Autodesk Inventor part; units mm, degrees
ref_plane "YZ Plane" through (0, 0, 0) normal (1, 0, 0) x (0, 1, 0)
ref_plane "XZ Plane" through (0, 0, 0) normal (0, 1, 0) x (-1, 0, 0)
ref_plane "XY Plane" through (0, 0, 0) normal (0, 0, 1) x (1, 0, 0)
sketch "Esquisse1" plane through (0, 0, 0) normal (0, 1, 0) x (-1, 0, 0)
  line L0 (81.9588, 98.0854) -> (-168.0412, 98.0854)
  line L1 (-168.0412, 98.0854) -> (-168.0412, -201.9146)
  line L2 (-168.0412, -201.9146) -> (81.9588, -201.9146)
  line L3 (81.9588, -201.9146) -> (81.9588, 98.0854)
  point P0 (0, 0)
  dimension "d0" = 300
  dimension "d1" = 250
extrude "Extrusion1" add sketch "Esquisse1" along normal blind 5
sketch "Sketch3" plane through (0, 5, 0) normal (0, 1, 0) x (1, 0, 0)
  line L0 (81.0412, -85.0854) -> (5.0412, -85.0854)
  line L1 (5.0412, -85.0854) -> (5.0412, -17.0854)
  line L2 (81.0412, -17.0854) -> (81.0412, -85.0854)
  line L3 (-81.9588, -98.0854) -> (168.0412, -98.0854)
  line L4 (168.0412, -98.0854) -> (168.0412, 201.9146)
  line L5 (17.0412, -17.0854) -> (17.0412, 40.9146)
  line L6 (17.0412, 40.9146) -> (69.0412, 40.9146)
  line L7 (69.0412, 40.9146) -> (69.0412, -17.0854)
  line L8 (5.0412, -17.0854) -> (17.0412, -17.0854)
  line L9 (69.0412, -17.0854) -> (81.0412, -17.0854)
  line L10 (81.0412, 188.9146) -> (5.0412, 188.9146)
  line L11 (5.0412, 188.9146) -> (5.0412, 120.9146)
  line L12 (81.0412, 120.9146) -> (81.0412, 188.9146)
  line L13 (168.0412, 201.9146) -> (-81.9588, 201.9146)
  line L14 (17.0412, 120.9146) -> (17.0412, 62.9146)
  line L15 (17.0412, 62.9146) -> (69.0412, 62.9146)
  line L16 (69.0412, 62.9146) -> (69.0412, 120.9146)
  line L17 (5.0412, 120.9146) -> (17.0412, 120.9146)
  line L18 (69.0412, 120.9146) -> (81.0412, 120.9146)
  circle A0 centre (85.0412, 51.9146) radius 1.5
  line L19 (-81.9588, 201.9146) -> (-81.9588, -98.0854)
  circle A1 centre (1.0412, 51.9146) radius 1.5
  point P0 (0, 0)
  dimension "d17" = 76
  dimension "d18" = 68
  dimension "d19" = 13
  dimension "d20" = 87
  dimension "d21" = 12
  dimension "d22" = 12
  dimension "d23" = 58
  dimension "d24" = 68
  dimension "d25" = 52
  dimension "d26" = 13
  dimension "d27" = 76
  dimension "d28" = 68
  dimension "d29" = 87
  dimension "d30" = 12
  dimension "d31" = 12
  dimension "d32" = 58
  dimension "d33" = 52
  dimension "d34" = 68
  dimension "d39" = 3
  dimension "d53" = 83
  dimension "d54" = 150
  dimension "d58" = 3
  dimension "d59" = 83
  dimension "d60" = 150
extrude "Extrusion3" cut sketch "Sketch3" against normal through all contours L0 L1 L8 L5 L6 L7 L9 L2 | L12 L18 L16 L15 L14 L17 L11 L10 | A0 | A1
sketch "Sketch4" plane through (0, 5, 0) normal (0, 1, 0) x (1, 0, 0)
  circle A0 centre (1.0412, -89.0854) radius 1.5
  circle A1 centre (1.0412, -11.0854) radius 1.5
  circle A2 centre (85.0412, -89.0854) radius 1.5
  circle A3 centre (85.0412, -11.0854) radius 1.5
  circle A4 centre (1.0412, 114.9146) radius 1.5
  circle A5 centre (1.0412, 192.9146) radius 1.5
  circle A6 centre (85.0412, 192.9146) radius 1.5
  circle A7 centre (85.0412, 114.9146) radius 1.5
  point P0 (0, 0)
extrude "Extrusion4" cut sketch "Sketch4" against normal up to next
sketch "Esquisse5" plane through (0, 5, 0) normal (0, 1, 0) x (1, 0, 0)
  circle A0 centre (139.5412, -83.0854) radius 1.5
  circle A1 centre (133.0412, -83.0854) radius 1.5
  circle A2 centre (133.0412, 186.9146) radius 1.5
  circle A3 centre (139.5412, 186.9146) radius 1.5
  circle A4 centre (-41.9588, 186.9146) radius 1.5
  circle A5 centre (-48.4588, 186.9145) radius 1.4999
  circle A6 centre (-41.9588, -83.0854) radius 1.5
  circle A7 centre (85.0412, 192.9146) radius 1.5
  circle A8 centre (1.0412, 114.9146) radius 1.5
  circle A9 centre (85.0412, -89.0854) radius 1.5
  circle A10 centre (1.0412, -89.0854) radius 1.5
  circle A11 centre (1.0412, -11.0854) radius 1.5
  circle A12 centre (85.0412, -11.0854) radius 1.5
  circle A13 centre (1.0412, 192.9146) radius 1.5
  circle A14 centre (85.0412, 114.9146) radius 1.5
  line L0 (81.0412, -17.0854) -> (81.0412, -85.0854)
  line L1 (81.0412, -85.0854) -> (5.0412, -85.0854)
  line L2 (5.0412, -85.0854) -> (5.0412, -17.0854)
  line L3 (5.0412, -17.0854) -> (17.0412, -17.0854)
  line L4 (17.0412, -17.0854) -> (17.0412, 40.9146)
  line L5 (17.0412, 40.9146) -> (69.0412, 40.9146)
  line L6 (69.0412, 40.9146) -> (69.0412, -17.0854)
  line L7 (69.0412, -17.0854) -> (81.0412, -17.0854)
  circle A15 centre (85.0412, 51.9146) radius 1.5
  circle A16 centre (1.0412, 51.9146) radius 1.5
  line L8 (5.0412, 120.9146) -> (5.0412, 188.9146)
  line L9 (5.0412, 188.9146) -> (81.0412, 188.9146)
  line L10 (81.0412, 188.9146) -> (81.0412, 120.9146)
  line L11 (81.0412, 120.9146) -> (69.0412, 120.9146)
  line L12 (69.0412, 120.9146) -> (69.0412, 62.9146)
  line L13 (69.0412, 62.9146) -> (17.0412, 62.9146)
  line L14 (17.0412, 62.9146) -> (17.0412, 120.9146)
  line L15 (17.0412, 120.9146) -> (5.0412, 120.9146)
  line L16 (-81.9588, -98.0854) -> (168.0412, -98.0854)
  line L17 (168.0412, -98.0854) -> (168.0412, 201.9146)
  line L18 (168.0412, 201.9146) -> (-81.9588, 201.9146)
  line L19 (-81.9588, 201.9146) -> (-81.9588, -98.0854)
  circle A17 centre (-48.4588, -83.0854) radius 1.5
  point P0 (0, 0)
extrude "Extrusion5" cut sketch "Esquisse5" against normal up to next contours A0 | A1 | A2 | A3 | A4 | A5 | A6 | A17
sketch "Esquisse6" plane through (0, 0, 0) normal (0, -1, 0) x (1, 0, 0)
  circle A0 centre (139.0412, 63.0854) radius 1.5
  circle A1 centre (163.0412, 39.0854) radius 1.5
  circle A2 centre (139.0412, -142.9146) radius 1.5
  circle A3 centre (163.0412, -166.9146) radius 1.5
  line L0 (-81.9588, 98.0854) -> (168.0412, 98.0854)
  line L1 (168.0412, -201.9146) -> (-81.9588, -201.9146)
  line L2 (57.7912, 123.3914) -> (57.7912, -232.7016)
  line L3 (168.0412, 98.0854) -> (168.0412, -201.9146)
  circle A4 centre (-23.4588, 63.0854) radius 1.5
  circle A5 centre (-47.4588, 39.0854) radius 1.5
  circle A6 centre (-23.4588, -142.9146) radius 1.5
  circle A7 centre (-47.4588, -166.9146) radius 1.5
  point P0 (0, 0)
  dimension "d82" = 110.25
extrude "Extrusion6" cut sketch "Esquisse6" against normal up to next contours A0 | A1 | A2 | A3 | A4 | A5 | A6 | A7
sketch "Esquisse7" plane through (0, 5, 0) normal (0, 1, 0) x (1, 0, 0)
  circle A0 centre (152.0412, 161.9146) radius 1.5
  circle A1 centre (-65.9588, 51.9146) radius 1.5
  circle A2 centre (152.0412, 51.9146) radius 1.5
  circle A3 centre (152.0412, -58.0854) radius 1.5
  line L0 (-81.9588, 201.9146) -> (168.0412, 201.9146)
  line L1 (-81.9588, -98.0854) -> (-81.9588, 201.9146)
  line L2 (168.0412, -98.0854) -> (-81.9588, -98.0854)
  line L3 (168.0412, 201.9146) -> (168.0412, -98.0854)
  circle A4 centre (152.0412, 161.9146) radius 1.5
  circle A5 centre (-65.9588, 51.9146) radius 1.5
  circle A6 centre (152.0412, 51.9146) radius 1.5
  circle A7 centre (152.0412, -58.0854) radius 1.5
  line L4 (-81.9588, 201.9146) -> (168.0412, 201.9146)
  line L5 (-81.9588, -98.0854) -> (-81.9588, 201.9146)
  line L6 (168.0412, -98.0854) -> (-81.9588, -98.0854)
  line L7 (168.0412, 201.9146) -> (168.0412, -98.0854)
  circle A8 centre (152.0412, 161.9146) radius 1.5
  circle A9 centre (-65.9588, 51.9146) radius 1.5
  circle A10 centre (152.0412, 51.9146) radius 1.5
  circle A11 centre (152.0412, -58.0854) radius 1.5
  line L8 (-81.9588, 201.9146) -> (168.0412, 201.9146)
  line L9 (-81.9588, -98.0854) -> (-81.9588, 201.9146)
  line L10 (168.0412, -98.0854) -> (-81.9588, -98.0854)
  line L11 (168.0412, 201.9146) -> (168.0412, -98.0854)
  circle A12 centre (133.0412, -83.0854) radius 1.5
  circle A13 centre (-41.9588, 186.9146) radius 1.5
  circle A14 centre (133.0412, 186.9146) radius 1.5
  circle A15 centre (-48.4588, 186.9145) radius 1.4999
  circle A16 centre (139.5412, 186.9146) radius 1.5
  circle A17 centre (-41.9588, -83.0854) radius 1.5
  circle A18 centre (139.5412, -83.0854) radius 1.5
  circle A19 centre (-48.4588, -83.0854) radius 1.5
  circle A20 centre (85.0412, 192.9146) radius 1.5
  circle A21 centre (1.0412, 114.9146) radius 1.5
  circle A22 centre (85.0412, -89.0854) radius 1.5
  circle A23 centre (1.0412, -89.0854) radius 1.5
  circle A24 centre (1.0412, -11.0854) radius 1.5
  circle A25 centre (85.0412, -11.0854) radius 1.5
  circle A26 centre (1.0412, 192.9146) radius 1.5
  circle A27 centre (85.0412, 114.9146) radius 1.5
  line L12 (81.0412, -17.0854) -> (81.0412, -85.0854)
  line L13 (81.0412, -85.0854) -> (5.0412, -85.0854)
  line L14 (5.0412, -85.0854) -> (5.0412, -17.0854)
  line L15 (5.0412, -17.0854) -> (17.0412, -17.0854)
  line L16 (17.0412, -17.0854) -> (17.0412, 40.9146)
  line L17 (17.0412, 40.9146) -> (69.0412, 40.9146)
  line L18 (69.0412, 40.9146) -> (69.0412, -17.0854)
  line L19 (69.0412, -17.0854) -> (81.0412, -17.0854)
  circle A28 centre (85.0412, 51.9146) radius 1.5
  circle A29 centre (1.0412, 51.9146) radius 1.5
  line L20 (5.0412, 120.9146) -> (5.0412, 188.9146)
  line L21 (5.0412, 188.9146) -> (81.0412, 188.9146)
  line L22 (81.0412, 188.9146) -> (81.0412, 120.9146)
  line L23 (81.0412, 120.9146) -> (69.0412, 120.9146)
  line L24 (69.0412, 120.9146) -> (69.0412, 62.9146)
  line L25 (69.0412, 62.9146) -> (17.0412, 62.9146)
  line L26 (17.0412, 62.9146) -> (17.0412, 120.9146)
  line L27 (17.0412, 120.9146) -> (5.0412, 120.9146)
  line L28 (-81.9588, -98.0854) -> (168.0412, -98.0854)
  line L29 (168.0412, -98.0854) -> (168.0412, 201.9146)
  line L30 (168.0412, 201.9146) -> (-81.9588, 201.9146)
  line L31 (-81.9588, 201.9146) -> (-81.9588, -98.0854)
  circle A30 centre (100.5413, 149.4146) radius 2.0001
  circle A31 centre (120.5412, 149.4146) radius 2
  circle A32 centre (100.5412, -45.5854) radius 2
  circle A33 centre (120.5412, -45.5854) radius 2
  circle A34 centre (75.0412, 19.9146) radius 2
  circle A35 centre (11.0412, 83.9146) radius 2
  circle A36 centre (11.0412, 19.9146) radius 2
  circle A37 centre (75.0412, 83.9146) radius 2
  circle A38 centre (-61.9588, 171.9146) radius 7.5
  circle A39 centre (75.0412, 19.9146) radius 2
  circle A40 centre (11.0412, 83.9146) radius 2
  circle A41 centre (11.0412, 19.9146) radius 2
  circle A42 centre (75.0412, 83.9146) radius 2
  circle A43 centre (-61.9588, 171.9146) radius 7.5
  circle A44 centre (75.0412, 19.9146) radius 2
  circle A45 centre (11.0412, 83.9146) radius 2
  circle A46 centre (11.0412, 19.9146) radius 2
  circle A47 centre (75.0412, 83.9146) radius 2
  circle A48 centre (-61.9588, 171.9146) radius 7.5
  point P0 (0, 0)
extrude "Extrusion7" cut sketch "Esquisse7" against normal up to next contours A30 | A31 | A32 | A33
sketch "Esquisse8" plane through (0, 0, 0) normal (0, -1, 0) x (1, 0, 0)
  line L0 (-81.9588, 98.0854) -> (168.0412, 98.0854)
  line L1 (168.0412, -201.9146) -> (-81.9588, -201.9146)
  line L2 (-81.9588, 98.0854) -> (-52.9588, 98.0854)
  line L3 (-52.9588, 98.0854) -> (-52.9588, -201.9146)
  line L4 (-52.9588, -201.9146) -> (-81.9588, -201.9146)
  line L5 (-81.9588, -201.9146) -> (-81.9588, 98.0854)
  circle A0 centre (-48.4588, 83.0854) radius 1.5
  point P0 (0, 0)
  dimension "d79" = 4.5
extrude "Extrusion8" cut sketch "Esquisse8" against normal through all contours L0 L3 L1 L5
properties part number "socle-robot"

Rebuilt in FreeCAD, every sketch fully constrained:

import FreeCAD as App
import Part
import Sketcher
from FreeCAD import Vector
Q = App.Units.Quantity

doc = App.newDocument("Part")
body = doc.addObject("PartDesign::Body", "Body")

# Sketch on XZ plane
sketch1 = body.newObject("Sketcher::SketchObject", "Sketch")
sketch1.AttachmentSupport = (doc.getObject("XZ_Plane"), [""])
sketch1.MapMode = "FlatFace"
sketch1.addGeometry([
    Part.LineSegment(Vector(-82, -202, 0), Vector(-82, 98, 0)),
    Part.LineSegment(Vector(-82, 98, 0), Vector(168, 98, 0)),
    Part.LineSegment(Vector(168, 98, 0), Vector(168, -202, 0)),
    Part.LineSegment(Vector(168, -202, 0), Vector(-82, -202, 0)),
], False)
sketch1.addConstraint([
    Sketcher.Constraint("Coincident", 0, 2, 1, 1),
    Sketcher.Constraint("Coincident", 1, 2, 2, 1),
    Sketcher.Constraint("Coincident", 2, 2, 3, 1),
    Sketcher.Constraint("Coincident", 3, 2, 0, 1),
    Sketcher.Constraint("Vertical", 0),
    Sketcher.Constraint("Horizontal", 1),
    Sketcher.Constraint("Vertical", 2),
    Sketcher.Constraint("Horizontal", 3),
    Sketcher.Constraint("DistanceX", 1, 1, 1, 2, Q("250 mm")),
    Sketcher.Constraint("DistanceY", 0, 1, 0, 2, Q("300 mm")),
    Sketcher.Constraint("DistanceX", 0, 2, -1, 1, Q("81.9588 mm")),
    Sketcher.Constraint("DistanceY", -1, 1, 0, 2, Q("98.0854 mm")),
])
pad1 = body.newObject("PartDesign::Pad", "Pad")
pad1.Profile = sketch1
pad1.Length = 5
pad1.Reversed = True

# Sketch on XZ plane
sketch2 = body.newObject("Sketcher::SketchObject", "Sketch001")
sketch2.AttachmentSupport = (doc.getObject("XZ_Plane"), [""])
sketch2.MapMode = "FlatFace"
sketch2.AttachmentOffset = App.Placement(Vector(0, 0, -5), App.Rotation())
sketch2.addGeometry([
    Part.LineSegment(Vector(5, 85.1, 0), Vector(81, 85.1, 0)),  # 0
    Part.LineSegment(Vector(81, 85.1, 0), Vector(81, 17.1, 0)),  # 1
    Part.LineSegment(Vector(81, 17.1, 0), Vector(69, 17.1, 0)),  # 2
    Part.LineSegment(Vector(69, 17.1, 0), Vector(69, -40.9, 0)),  # 3
    Part.LineSegment(Vector(69, -40.9, 0), Vector(17, -40.9, 0)),  # 4
    Part.LineSegment(Vector(17, -40.9, 0), Vector(17, 17.1, 0)),  # 5
    Part.LineSegment(Vector(17, 17.1, 0), Vector(5, 17.1, 0)),  # 6
    Part.LineSegment(Vector(5, 17.1, 0), Vector(5, 85.1, 0)),  # 7
    Part.LineSegment(Vector(81, -120.9, 0), Vector(81, -188.9, 0)),  # 8
    Part.LineSegment(Vector(81, -188.9, 0), Vector(5, -188.9, 0)),  # 9
    Part.LineSegment(Vector(5, -188.9, 0), Vector(5, -120.9, 0)),  # 10
    Part.LineSegment(Vector(5, -120.9, 0), Vector(17, -120.9, 0)),  # 11
    Part.LineSegment(Vector(17, -120.9, 0), Vector(17, -62.9, 0)),  # 12
    Part.LineSegment(Vector(17, -62.9, 0), Vector(69, -62.9, 0)),  # 13
    Part.LineSegment(Vector(69, -62.9, 0), Vector(69, -120.9, 0)),  # 14
    Part.LineSegment(Vector(69, -120.9, 0), Vector(81, -120.9, 0)),  # 15
    Part.Circle(Vector(85, -51.9, 0), Vector(0, 0, 1), 1.5),  # 16
    Part.Circle(Vector(1, -51.9, 0), Vector(0, 0, 1), 1.5),  # 17
], False)
sketch2.addConstraint([
    Sketcher.Constraint("Coincident", 0, 2, 1, 1),
    Sketcher.Constraint("Coincident", 1, 2, 2, 1),
    Sketcher.Constraint("Coincident", 2, 2, 3, 1),
    Sketcher.Constraint("Coincident", 3, 2, 4, 1),
    Sketcher.Constraint("Coincident", 4, 2, 5, 1),
    Sketcher.Constraint("Coincident", 5, 2, 6, 1),
    Sketcher.Constraint("Coincident", 6, 2, 7, 1),
    Sketcher.Constraint("Coincident", 7, 2, 0, 1),
    Sketcher.Constraint("Coincident", 8, 2, 9, 1),
    Sketcher.Constraint("Coincident", 9, 2, 10, 1),
    Sketcher.Constraint("Coincident", 10, 2, 11, 1),
    Sketcher.Constraint("Coincident", 11, 2, 12, 1),
    Sketcher.Constraint("Coincident", 12, 2, 13, 1),
    Sketcher.Constraint("Coincident", 13, 2, 14, 1),
    Sketcher.Constraint("Coincident", 14, 2, 15, 1),
    Sketcher.Constraint("Coincident", 15, 2, 8, 1),
    Sketcher.Constraint("Horizontal", 0),
    Sketcher.Constraint("Vertical", 1),
    Sketcher.Constraint("Horizontal", 2),
    Sketcher.Constraint("Vertical", 3),
    Sketcher.Constraint("Horizontal", 4),
    Sketcher.Constraint("Vertical", 5),
    Sketcher.Constraint("Horizontal", 6),
    Sketcher.Constraint("Vertical", 7),
    Sketcher.Constraint("Vertical", 8),
    Sketcher.Constraint("Horizontal", 9),
    Sketcher.Constraint("Vertical", 10),
    Sketcher.Constraint("Horizontal", 11),
    Sketcher.Constraint("Vertical", 12),
    Sketcher.Constraint("Horizontal", 13),
    Sketcher.Constraint("Vertical", 14),
    Sketcher.Constraint("Horizontal", 15),
    Sketcher.Constraint("Equal", 16, 17),
    Sketcher.Constraint("Horizontal", 16, 3, 17, 3),
    Sketcher.Constraint("Horizontal", 2, 2, 5, 2),
    Sketcher.Constraint("Horizontal", 11, 2, 14, 2),
    Sketcher.Constraint("Vertical", 1, 2, 8, 2),
    Sketcher.Constraint("Vertical", 7, 2, 9, 2),
    Sketcher.Constraint("Vertical", 5, 2, 11, 2),
    Sketcher.Constraint("Vertical", 3, 2, 13, 2),
    Sketcher.Constraint("Equal", 2, 6),
    Sketcher.Constraint("Equal", 7, 8),
    Sketcher.Constraint("Equal", 5, 12),
    Sketcher.Constraint("Diameter", 16, Q("3 mm")),
    Sketcher.Constraint("DistanceX", 0, 1, 0, 2, Q("76 mm")),
    Sketcher.Constraint("DistanceX", 2, 2, 2, 1, Q("12 mm")),
    Sketcher.Constraint("DistanceY", 1, 2, 1, 1, Q("68 mm")),
    Sketcher.Constraint("DistanceY", 3, 2, 3, 1, Q("58 mm")),
    Sketcher.Constraint("DistanceX", 17, 3, 2, 2, Q("68 mm")),
    Sketcher.Constraint("DistanceX", 4, 2, 16, 3, Q("68 mm")),
    Sketcher.Constraint("DistanceY", 16, 3, 0, 2, Q("137 mm")),
    Sketcher.Constraint("DistanceY", 8, 2, 16, 3, Q("137 mm")),
    Sketcher.Constraint("DistanceX", -1, 1, 16, 3, Q("85.0412 mm")),
    Sketcher.Constraint("DistanceY", 16, 3, -1, 1, Q("51.9146 mm")),
])
pocket1 = body.newObject("PartDesign::Pocket", "Pocket")
pocket1.Profile = sketch2
pocket1.Type = "ThroughAll"
pocket1.Reversed = True

# Sketch on XZ plane
sketch3 = body.newObject("Sketcher::SketchObject", "Sketch002")
sketch3.AttachmentSupport = (doc.getObject("XZ_Plane"), [""])
sketch3.MapMode = "FlatFace"
sketch3.AttachmentOffset = App.Placement(Vector(0, 0, -5), App.Rotation())
sketch3.addGeometry([
    Part.Circle(Vector(1, 89.1, 0), Vector(0, 0, 1), 1.5),  # 0
    Part.Circle(Vector(1, 11.1, 0), Vector(0, 0, 1), 1.5),  # 1
    Part.Circle(Vector(85, 89.1, 0), Vector(0, 0, 1), 1.5),  # 2
    Part.Circle(Vector(85, 11.1, 0), Vector(0, 0, 1), 1.5),  # 3
    Part.Circle(Vector(1, -114.9, 0), Vector(0, 0, 1), 1.5),  # 4
    Part.Circle(Vector(1, -192.9, 0), Vector(0, 0, 1), 1.5),  # 5
    Part.Circle(Vector(85, -192.9, 0), Vector(0, 0, 1), 1.5),  # 6
    Part.Circle(Vector(85, -114.9, 0), Vector(0, 0, 1), 1.5),  # 7
], False)
sketch3.addConstraint([
    Sketcher.Constraint("Equal", 0, 1),
    Sketcher.Constraint("Equal", 1, 2),
    Sketcher.Constraint("Equal", 2, 3),
    Sketcher.Constraint("Equal", 3, 4),
    Sketcher.Constraint("Equal", 4, 5),
    Sketcher.Constraint("Equal", 5, 6),
    Sketcher.Constraint("Equal", 6, 7),
    Sketcher.Constraint("Horizontal", 0, 3, 2, 3),
    Sketcher.Constraint("Horizontal", 1, 3, 3, 3),
    Sketcher.Constraint("Horizontal", 5, 3, 6, 3),
    Sketcher.Constraint("Horizontal", 4, 3, 7, 3),
    Sketcher.Constraint("Vertical", 0, 3, 1, 3),
    Sketcher.Constraint("Vertical", 2, 3, 3, 3),
    Sketcher.Constraint("Vertical", 1, 3, 4, 3),
    Sketcher.Constraint("Vertical", 4, 3, 5, 3),
    Sketcher.Constraint("Vertical", 3, 3, 6, 3),
    Sketcher.Constraint("Vertical", 6, 3, 7, 3),
    Sketcher.Constraint("Diameter", 0, Q("3 mm")),
    Sketcher.Constraint("DistanceY", 1, 3, 0, 3, Q("78 mm")),
    Sketcher.Constraint("DistanceX", 0, 3, 2, 3, Q("84 mm")),
    Sketcher.Constraint("DistanceY", 4, 3, 1, 3, Q("126 mm")),
    Sketcher.Constraint("DistanceY", 5, 3, 4, 3, Q("78 mm")),
    Sketcher.Constraint("DistanceX", -1, 1, 0, 3, Q("1.0412 mm")),
    Sketcher.Constraint("DistanceY", -1, 1, 0, 3, Q("89.0854 mm")),
])
pocket2 = body.newObject("PartDesign::Pocket", "Pocket001")
pocket2.Profile = sketch3
pocket2.Length = 5
pocket2.Reversed = True

# Sketch on XZ plane
sketch4 = body.newObject("Sketcher::SketchObject", "Sketch003")
sketch4.AttachmentSupport = (doc.getObject("XZ_Plane"), [""])
sketch4.MapMode = "FlatFace"
sketch4.AttachmentOffset = App.Placement(Vector(0, 0, -5), App.Rotation())
sketch4.addGeometry([
    Part.Circle(Vector(139.5, 83.1, 0), Vector(0, 0, 1), 1.5),  # 0
    Part.Circle(Vector(133, 83.1, 0), Vector(0, 0, 1), 1.5),  # 1
    Part.Circle(Vector(133, -186.9, 0), Vector(0, 0, 1), 1.5),  # 2
    Part.Circle(Vector(139.5, -186.9, 0), Vector(0, 0, 1), 1.5),  # 3
    Part.Circle(Vector(-42, -186.9, 0), Vector(0, 0, 1), 1.5),  # 4
    Part.Circle(Vector(-48.5, -186.9, 0), Vector(0, 0, 1), 1.5),  # 5
    Part.Circle(Vector(-42, 83.1, 0), Vector(0, 0, 1), 1.5),  # 6
    Part.Circle(Vector(-48.5, 83.1, 0), Vector(0, 0, 1), 1.5),  # 7
], False)
sketch4.addConstraint([
    Sketcher.Constraint("Equal", 0, 1),
    Sketcher.Constraint("Equal", 1, 2),
    Sketcher.Constraint("Equal", 2, 3),
    Sketcher.Constraint("Equal", 3, 4),
    Sketcher.Constraint("Equal", 4, 5),
    Sketcher.Constraint("Equal", 5, 6),
    Sketcher.Constraint("Equal", 6, 7),
    Sketcher.Constraint("Horizontal", 0, 3, 1, 3),
    Sketcher.Constraint("Horizontal", 2, 3, 3, 3),
    Sketcher.Constraint("Horizontal", 3, 3, 4, 3),
    Sketcher.Constraint("Horizontal", 4, 3, 5, 3),
    Sketcher.Constraint("Horizontal", 1, 3, 6, 3),
    Sketcher.Constraint("Horizontal", 6, 3, 7, 3),
    Sketcher.Constraint("Vertical", 1, 3, 2, 3),
    Sketcher.Constraint("Vertical", 0, 3, 3, 3),
    Sketcher.Constraint("Vertical", 4, 3, 6, 3),
    Sketcher.Constraint("Vertical", 5, 3, 7, 3),
    Sketcher.Constraint("Diameter", 0, Q("3 mm")),
    Sketcher.Constraint("DistanceY", 2, 3, 1, 3, Q("270 mm")),
    Sketcher.Constraint("DistanceX", 4, 3, 2, 3, Q("175 mm")),
    Sketcher.Constraint("DistanceX", 5, 3, 3, 3, Q("188 mm")),
    Sketcher.Constraint("DistanceX", 1, 3, 0, 3, Q("6.5 mm")),
    Sketcher.Constraint("DistanceX", -1, 1, 0, 3, Q("139.5412 mm")),
    Sketcher.Constraint("DistanceY", -1, 1, 0, 3, Q("83.0854 mm")),
])
pocket3 = body.newObject("PartDesign::Pocket", "Pocket002")
pocket3.Profile = sketch4
pocket3.Length = 5
pocket3.Reversed = True

# Sketch on XZ plane
sketch5 = body.newObject("Sketcher::SketchObject", "Sketch004")
sketch5.AttachmentSupport = (doc.getObject("XZ_Plane"), [""])
sketch5.MapMode = "FlatFace"
sketch5.addGeometry([
    Part.Circle(Vector(139, 63.1, 0), Vector(0, 0, 1), 1.5),  # 0
    Part.Circle(Vector(163, 39.1, 0), Vector(0, 0, 1), 1.5),  # 1
    Part.Circle(Vector(139, -142.9, 0), Vector(0, 0, 1), 1.5),  # 2
    Part.Circle(Vector(163, -166.9, 0), Vector(0, 0, 1), 1.5),  # 3
    Part.Circle(Vector(-23.5, 63.1, 0), Vector(0, 0, 1), 1.5),  # 4
    Part.Circle(Vector(-47.5, 39.1, 0), Vector(0, 0, 1), 1.5),  # 5
    Part.Circle(Vector(-23.5, -142.9, 0), Vector(0, 0, 1), 1.5),  # 6
    Part.Circle(Vector(-47.5, -166.9, 0), Vector(0, 0, 1), 1.5),  # 7
], False)
sketch5.addConstraint([
    Sketcher.Constraint("Equal", 0, 1),
    Sketcher.Constraint("Equal", 1, 2),
    Sketcher.Constraint("Equal", 2, 3),
    Sketcher.Constraint("Equal", 3, 4),
    Sketcher.Constraint("Equal", 4, 5),
    Sketcher.Constraint("Equal", 5, 6),
    Sketcher.Constraint("Equal", 6, 7),
    Sketcher.Constraint("Horizontal", 0, 3, 4, 3),
    Sketcher.Constraint("Horizontal", 1, 3, 5, 3),
    Sketcher.Constraint("Horizontal", 2, 3, 6, 3),
    Sketcher.Constraint("Horizontal", 3, 3, 7, 3),
    Sketcher.Constraint("Vertical", 0, 3, 2, 3),
    Sketcher.Constraint("Vertical", 1, 3, 3, 3),
    Sketcher.Constraint("Vertical", 4, 3, 6, 3),
    Sketcher.Constraint("Vertical", 5, 3, 7, 3),
    Sketcher.Constraint("Diameter", 0, Q("3 mm")),
    Sketcher.Constraint("DistanceX", 0, 3, 1, 3, Q("24 mm")),
    Sketcher.Constraint("DistanceY", 1, 3, 0, 3, Q("24 mm")),
    Sketcher.Constraint("DistanceY", 2, 3, 1, 3, Q("182 mm")),
    Sketcher.Constraint("DistanceY", 3, 3, 2, 3, Q("24 mm")),
    Sketcher.Constraint("DistanceX", 5, 3, 4, 3, Q("24 mm")),
    Sketcher.Constraint("DistanceX", 4, 3, 0, 3, Q("162.5 mm")),
    Sketcher.Constraint("DistanceX", -1, 1, 0, 3, Q("139.0412 mm")),
    Sketcher.Constraint("DistanceY", -1, 1, 0, 3, Q("63.0854 mm")),
])
pocket4 = body.newObject("PartDesign::Pocket", "Pocket003")
pocket4.Profile = sketch5
pocket4.Type = "UpToFirst"

# Sketch on XZ plane
sketch6 = body.newObject("Sketcher::SketchObject", "Sketch005")
sketch6.AttachmentSupport = (doc.getObject("XZ_Plane"), [""])
sketch6.MapMode = "FlatFace"
sketch6.AttachmentOffset = App.Placement(Vector(0, 0, -5), App.Rotation())
sketch6.addGeometry([
    Part.Circle(Vector(100.5, -149.4, 0), Vector(0, 0, 1), 2),
    Part.Circle(Vector(120.5, -149.4, 0), Vector(0, 0, 1), 2),
    Part.Circle(Vector(100.5, 45.6, 0), Vector(0, 0, 1), 2),
    Part.Circle(Vector(120.5, 45.6, 0), Vector(0, 0, 1), 2),
], False)
sketch6.addConstraint([
    Sketcher.Constraint("Equal", 0, 1),
    Sketcher.Constraint("Equal", 1, 2),
    Sketcher.Constraint("Equal", 2, 3),
    Sketcher.Constraint("Horizontal", 0, 3, 1, 3),
    Sketcher.Constraint("Horizontal", 2, 3, 3, 3),
    Sketcher.Constraint("Vertical", 0, 3, 2, 3),
    Sketcher.Constraint("Vertical", 1, 3, 3, 3),
    Sketcher.Constraint("Diameter", 1, Q("4 mm")),
    Sketcher.Constraint("DistanceX", 0, 3, 1, 3, Q("20 mm")),
    Sketcher.Constraint("DistanceY", 0, 3, 2, 3, Q("195 mm")),
    Sketcher.Constraint("DistanceX", -1, 1, 0, 3, Q("100.5413 mm")),
    Sketcher.Constraint("DistanceY", 0, 3, -1, 1, Q("149.4146 mm")),
])
pocket5 = body.newObject("PartDesign::Pocket", "Pocket004")
pocket5.Profile = sketch6
pocket5.Type = "UpToFirst"
pocket5.Reversed = True

# Sketch on XZ plane
sketch7 = body.newObject("Sketcher::SketchObject", "Sketch006")
sketch7.AttachmentSupport = (doc.getObject("XZ_Plane"), [""])
sketch7.MapMode = "FlatFace"
sketch7.addGeometry([
    Part.LineSegment(Vector(-53, 98, 0), Vector(-82, 98, 0)),
    Part.LineSegment(Vector(-82, 98, 0), Vector(-82, -202, 0)),
    Part.LineSegment(Vector(-82, -202, 0), Vector(-53, -202, 0)),
    Part.LineSegment(Vector(-53, -202, 0), Vector(-53, 98, 0)),
], False)
sketch7.addConstraint([
    Sketcher.Constraint("Coincident", 0, 2, 1, 1),
    Sketcher.Constraint("Coincident", 1, 2, 2, 1),
    Sketcher.Constraint("Coincident", 2, 2, 3, 1),
    Sketcher.Constraint("Coincident", 3, 2, 0, 1),
    Sketcher.Constraint("Horizontal", 0),
    Sketcher.Constraint("Vertical", 1),
    Sketcher.Constraint("Horizontal", 2),
    Sketcher.Constraint("Vertical", 3),
    Sketcher.Constraint("DistanceX", 0, 2, 0, 1, Q("29 mm")),
    Sketcher.Constraint("DistanceY", 1, 2, 1, 1, Q("300 mm")),
    Sketcher.Constraint("DistanceX", 0, 2, -1, 1, Q("81.9588 mm")),
    Sketcher.Constraint("DistanceY", -1, 1, 0, 2, Q("98.0854 mm")),
])
pocket6 = body.newObject("PartDesign::Pocket", "Pocket005")
pocket6.Profile = sketch7
pocket6.Type = "ThroughAll"

doc.recompute()
